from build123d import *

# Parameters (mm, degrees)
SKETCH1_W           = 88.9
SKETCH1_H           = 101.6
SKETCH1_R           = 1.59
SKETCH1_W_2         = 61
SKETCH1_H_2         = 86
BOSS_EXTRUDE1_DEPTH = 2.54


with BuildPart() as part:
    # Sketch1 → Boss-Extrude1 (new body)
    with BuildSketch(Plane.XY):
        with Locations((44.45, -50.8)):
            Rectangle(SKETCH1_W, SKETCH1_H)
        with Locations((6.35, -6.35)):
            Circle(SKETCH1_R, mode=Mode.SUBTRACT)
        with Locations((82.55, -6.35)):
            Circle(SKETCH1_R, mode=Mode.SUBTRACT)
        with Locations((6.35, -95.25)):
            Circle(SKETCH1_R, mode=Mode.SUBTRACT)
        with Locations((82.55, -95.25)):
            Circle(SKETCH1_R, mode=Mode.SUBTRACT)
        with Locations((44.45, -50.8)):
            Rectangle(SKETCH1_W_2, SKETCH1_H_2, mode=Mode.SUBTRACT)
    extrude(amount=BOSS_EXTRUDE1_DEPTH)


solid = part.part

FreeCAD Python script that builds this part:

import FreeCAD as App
import Part
import Sketcher

V = App.Vector
Q = App.Units.Quantity


def add_polygon(sketch, points):
    """Adds a closed chain of lines whose ends are joined by coincident constraints."""
    first, n = sketch.GeometryCount, len(points)
    for a, b in zip(points, points[1:] + points[:1]):
        sketch.addGeometry(Part.LineSegment(App.Vector(*a, 0), App.Vector(*b, 0)), False)
    for i in range(n):
        sketch.addConstraint(Sketcher.Constraint("Coincident", first + i, 2, first + (i + 1) % n, 1))

doc = App.newDocument("Part")
body = doc.addObject("PartDesign::Body", "Body")

# Sketch on XY plane
sketch1 = body.newObject("Sketcher::SketchObject", "Sketch")
sketch1.AttachmentSupport = (doc.getObject("XY_Plane"), [""])
sketch1.MapMode = "FlatFace"
add_polygon(sketch1, [(0, 0), (0, -101.6), (88.9, -101.6), (88.9, 0)])  # lines 0-3
sketch1.addGeometry(Part.Circle(V(6.35, -95.25, 0), V(0, 0, 1), 1.59), False)  # 4
sketch1.addGeometry(Part.Circle(V(82.55, -95.25, 0), V(0, 0, 1), 1.59), False)  # 5
sketch1.addGeometry(Part.Circle(V(6.35, -6.35, 0), V(0, 0, 1), 1.59), False)  # 6
add_polygon(sketch1, [(74.95, -93.8), (13.95, -93.8), (13.95, -7.8), (74.95, -7.8)])  # lines 7-10
sketch1.addGeometry(Part.Circle(V(82.55, -6.35, 0), V(0, 0, 1), 1.59), False)  # 11
sketch1.addConstraint(Sketcher.Constraint("Vertical", 0))
sketch1.addConstraint(Sketcher.Constraint("Horizontal", 1))
sketch1.addConstraint(Sketcher.Constraint("Vertical", 2))
sketch1.addConstraint(Sketcher.Constraint("Horizontal", 3))
sketch1.addConstraint(Sketcher.Constraint("Horizontal", 7))
sketch1.addConstraint(Sketcher.Constraint("Vertical", 8))
sketch1.addConstraint(Sketcher.Constraint("Horizontal", 9))
sketch1.addConstraint(Sketcher.Constraint("Vertical", 10))
sketch1.addConstraint(Sketcher.Constraint("Coincident", 3, 2, -1, 1))
sketch1.addConstraint(Sketcher.Constraint("Equal", 4, 5))
sketch1.addConstraint(Sketcher.Constraint("Equal", 5, 6))
sketch1.addConstraint(Sketcher.Constraint("Equal", 6, 11))
sketch1.addConstraint(Sketcher.Constraint("Horizontal", 4, 3, 5, 3))
sketch1.addConstraint(Sketcher.Constraint("Horizontal", 6, 3, 11, 3))
sketch1.addConstraint(Sketcher.Constraint("Vertical", 4, 3, 6, 3))
sketch1.addConstraint(Sketcher.Constraint("Vertical", 5, 3, 11, 3))
sketch1.addConstraint(Sketcher.Constraint("DistanceY", 0, 2, 0, 1, Q("4 in")))
sketch1.addConstraint(Sketcher.Constraint("DistanceX", 1, 1, 1, 2, Q("3.5 in")))
sketch1.addConstraint(Sketcher.Constraint("DistanceX", 4, 3, 5, 3, Q("3 in")))
sketch1.addConstraint(Sketcher.Constraint("DistanceY", 4, 3, 6, 3, Q("3.5 in")))
sketch1.addConstraint(Sketcher.Constraint("Diameter", 4, 3.18))
sketch1.addConstraint(Sketcher.Constraint("DistanceX", -1, 1, 4, 3, Q("0.25 in")))
sketch1.addConstraint(Sketcher.Constraint("DistanceY", 4, 3, -1, 1, Q("3.75 in")))
sketch1.addConstraint(Sketcher.Constraint("DistanceX", 7, 2, 7, 1, 61.0))
sketch1.addConstraint(Sketcher.Constraint("DistanceY", 8, 1, 8, 2, 86.0))
sketch1.addConstraint(Sketcher.Constraint("DistanceX", -1, 1, 7, 2, 13.95))
sketch1.addConstraint(Sketcher.Constraint("DistanceY", 7, 2, -1, 1, 93.8))
pad1 = body.newObject("PartDesign::Pad", "Pad")
pad1.Profile = sketch1
pad1.Length = Q("0.1 in")

doc.recompute()
